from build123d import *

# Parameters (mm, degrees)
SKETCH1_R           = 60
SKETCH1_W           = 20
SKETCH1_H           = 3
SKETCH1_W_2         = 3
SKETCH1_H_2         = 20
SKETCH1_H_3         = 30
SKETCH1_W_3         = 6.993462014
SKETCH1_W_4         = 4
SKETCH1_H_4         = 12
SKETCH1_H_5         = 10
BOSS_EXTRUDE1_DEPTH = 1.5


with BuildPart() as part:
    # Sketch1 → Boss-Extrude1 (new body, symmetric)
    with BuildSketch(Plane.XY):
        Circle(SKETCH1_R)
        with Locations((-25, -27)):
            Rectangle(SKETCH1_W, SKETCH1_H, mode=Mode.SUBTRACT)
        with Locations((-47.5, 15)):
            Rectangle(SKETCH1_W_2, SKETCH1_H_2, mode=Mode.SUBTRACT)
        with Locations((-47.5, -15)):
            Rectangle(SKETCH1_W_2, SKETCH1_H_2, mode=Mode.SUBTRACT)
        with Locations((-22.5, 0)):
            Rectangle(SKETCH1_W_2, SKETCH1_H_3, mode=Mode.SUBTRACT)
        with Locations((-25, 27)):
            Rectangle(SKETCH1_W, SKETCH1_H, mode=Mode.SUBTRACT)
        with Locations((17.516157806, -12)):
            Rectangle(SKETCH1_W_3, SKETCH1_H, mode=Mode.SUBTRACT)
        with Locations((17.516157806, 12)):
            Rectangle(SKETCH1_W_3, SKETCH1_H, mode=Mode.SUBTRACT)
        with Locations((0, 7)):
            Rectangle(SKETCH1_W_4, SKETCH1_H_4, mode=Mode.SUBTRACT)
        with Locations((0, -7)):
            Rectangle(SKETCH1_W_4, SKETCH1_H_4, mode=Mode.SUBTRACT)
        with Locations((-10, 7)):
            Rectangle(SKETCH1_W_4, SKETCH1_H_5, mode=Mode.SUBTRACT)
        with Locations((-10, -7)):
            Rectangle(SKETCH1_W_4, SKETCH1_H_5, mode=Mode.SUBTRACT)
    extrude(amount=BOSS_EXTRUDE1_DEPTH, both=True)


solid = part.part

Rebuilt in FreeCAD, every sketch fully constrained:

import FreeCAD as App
import Part
import Sketcher

V = App.Vector
Q = App.Units.Quantity


def add_polygon(sketch, points):
    """Adds a closed chain of lines whose ends are joined by coincident constraints."""
    first, n = sketch.GeometryCount, len(points)
    for a, b in zip(points, points[1:] + points[:1]):
        sketch.addGeometry(Part.LineSegment(App.Vector(*a, 0), App.Vector(*b, 0)), False)
    for i in range(n):
        sketch.addConstraint(Sketcher.Constraint("Coincident", first + i, 2, first + (i + 1) % n, 1))

doc = App.newDocument("Part")
body = doc.addObject("PartDesign::Body", "Body")

sketch1 = doc.addObject("Sketcher::SketchObject", "Sketch")
body.addObject(sketch1)
sketch1.AttachmentSupport = (doc.XY_Plane, [""])
sketch1.MapMode = "FlatFace"
sketch1.addGeometry(Part.Circle(V(0, 0, 0), V(0, 0, 1), 60), False)
add_polygon(sketch1, [(-46, -25), (-49, -25), (-49, -5), (-46, -5)])
add_polygon(sketch1, [(-15, -28.5), (-35, -28.5), (-35, -25.5), (-15, -25.5)])
add_polygon(sketch1, [(-8, -12), (-12, -12), (-12, -2), (-8, -2)])
add_polygon(sketch1, [(2, -13), (-2, -13), (-2, -1), (2, -1)])
add_polygon(sketch1, [(21.012889, -13.5), (14.019427, -13.5), (14.019427, -10.5), (21.012889, -10.5)])
add_polygon(sketch1, [(-21, -15), (-24, -15), (-24, 15), (-21, 15)])
add_polygon(sketch1, [(-46, 5), (-49, 5), (-49, 25), (-46, 25)])
add_polygon(sketch1, [(-15, 25.5), (-35, 25.5), (-35, 28.5), (-15, 28.5)])
add_polygon(sketch1, [(-8, 2), (-12, 2), (-12, 12), (-8, 12)])
add_polygon(sketch1, [(2, 1), (-2, 1), (-2, 13), (2, 13)])
add_polygon(sketch1, [(21.012889, 10.5), (14.019427, 10.5), (14.019427, 13.5), (21.012889, 13.5)])
sketch1.addConstraint([
    Sketcher.Constraint("Horizontal", 1),
    Sketcher.Constraint("Vertical", 2),
    Sketcher.Constraint("Horizontal", 3),
    Sketcher.Constraint("Vertical", 4),
    Sketcher.Constraint("Horizontal", 5),
    Sketcher.Constraint("Vertical", 6),
    Sketcher.Constraint("Horizontal", 7),
    Sketcher.Constraint("Vertical", 8),
    Sketcher.Constraint("Horizontal", 9),
    Sketcher.Constraint("Vertical", 10),
    Sketcher.Constraint("Horizontal", 11),
    Sketcher.Constraint("Vertical", 12),
    Sketcher.Constraint("Horizontal", 13),
    Sketcher.Constraint("Vertical", 14),
    Sketcher.Constraint("Horizontal", 15),
    Sketcher.Constraint("Vertical", 16),
    Sketcher.Constraint("Horizontal", 17),
    Sketcher.Constraint("Vertical", 18),
    Sketcher.Constraint("Horizontal", 19),
    Sketcher.Constraint("Vertical", 20),
    Sketcher.Constraint("Horizontal", 21),
    Sketcher.Constraint("Vertical", 22),
    Sketcher.Constraint("Horizontal", 23),
    Sketcher.Constraint("Vertical", 24),
    Sketcher.Constraint("Horizontal", 25),
    Sketcher.Constraint("Vertical", 26),
    Sketcher.Constraint("Horizontal", 27),
    Sketcher.Constraint("Vertical", 28),
    Sketcher.Constraint("Horizontal", 29),
    Sketcher.Constraint("Vertical", 30),
    Sketcher.Constraint("Horizontal", 31),
    Sketcher.Constraint("Vertical", 32),
    Sketcher.Constraint("Horizontal", 33),
    Sketcher.Constraint("Vertical", 34),
    Sketcher.Constraint("Horizontal", 35),
    Sketcher.Constraint("Vertical", 36),
    Sketcher.Constraint("Horizontal", 37),
    Sketcher.Constraint("Vertical", 38),
    Sketcher.Constraint("Horizontal", 39),
    Sketcher.Constraint("Vertical", 40),
    Sketcher.Constraint("Horizontal", 41),
    Sketcher.Constraint("Vertical", 42),
    Sketcher.Constraint("Horizontal", 43),
    Sketcher.Constraint("Vertical", 44),
    Sketcher.Constraint("Coincident", 0, 3, -1, 1),
    Sketcher.Constraint("Symmetric", 15, 2, 37, 2, -1, 1),
    Sketcher.Constraint("Symmetric", 13, 2, 39, 2, -1, 1),
    Sketcher.Constraint("Symmetric", 2, 2, 25, 2, -1),
    Sketcher.Constraint("Symmetric", 4, 2, 27, 2, -1),
    Sketcher.Constraint("Symmetric", 6, 2, 29, 2, -1),
    Sketcher.Constraint("Symmetric", 8, 2, 31, 2, -1),
    Sketcher.Constraint("Symmetric", 10, 2, 33, 2, -1),
    Sketcher.Constraint("Symmetric", 12, 2, 35, 2, -1),
    Sketcher.Constraint("Symmetric", 18, 2, 41, 2, -1),
    Sketcher.Constraint("Symmetric", 20, 2, 43, 2, -1),
    Sketcher.Constraint("Vertical", 14, 2, 37, 2),
    Sketcher.Constraint("Equal", 11, 13),
    Sketcher.Constraint("Equal", 3, 21),
    Sketcher.Constraint("Equal", 31, 2),
    Sketcher.Constraint("Equal", 27, 6),
    Sketcher.Constraint("Equal", 8, 18),
    Sketcher.Constraint("Diameter", 0, Q("120 mm")),
    Sketcher.Constraint("DistanceX", 1, 2, 1, 1, Q("3 mm")),
    Sketcher.Constraint("DistanceX", 5, 2, 5, 1, Q("20 mm")),
    Sketcher.Constraint("DistanceX", 9, 2, 9, 1, Q("4 mm")),
    Sketcher.Constraint("DistanceY", 10, 1, 10, 2, Q("10 mm")),
    Sketcher.Constraint("DistanceY", 14, 1, 14, 2, Q("12 mm")),
    Sketcher.Constraint("DistanceY", 22, 1, 22, 2, Q("30 mm")),
    Sketcher.Constraint("DistanceX", 1, 2, -1, 1, Q("49 mm")),
    Sketcher.Constraint("DistanceY", 1, 2, -1, 1, Q("25 mm")),
    Sketcher.Constraint("DistanceX", 5, 2, -1, 1, Q("35 mm")),
    Sketcher.Constraint("DistanceX", 9, 2, -1, 1, Q("12 mm")),
    Sketcher.Constraint("DistanceY", 9, 2, -1, 1, Q("12 mm")),
    Sketcher.Constraint("DistanceY", 13, 2, -1, 1, Q("13 mm")),
    Sketcher.Constraint("DistanceX", 21, 2, -1, 1, Q("24 mm")),
    Sketcher.Constraint("DistanceY", 21, 2, -1, 1, Q("15 mm")),
    Sketcher.Constraint("DistanceY", 19, 2, 44, 2, Q("21 mm")),
    Sketcher.Constraint("DistanceY", 5, 2, -1, 1, Q("28.5 mm")),
    Sketcher.Constraint("DistanceX", 17, 2, 17, 1, Q("6.993462 mm")),
    Sketcher.Constraint("DistanceX", -1, 1, 19, 2, Q("21.012889 mm")),
])
pad1 = doc.addObject("PartDesign::Pad", "Pad")
body.addObject(pad1)
pad1.Profile = sketch1
pad1.Length = 3
pad1.Midplane = True

doc.recompute()
